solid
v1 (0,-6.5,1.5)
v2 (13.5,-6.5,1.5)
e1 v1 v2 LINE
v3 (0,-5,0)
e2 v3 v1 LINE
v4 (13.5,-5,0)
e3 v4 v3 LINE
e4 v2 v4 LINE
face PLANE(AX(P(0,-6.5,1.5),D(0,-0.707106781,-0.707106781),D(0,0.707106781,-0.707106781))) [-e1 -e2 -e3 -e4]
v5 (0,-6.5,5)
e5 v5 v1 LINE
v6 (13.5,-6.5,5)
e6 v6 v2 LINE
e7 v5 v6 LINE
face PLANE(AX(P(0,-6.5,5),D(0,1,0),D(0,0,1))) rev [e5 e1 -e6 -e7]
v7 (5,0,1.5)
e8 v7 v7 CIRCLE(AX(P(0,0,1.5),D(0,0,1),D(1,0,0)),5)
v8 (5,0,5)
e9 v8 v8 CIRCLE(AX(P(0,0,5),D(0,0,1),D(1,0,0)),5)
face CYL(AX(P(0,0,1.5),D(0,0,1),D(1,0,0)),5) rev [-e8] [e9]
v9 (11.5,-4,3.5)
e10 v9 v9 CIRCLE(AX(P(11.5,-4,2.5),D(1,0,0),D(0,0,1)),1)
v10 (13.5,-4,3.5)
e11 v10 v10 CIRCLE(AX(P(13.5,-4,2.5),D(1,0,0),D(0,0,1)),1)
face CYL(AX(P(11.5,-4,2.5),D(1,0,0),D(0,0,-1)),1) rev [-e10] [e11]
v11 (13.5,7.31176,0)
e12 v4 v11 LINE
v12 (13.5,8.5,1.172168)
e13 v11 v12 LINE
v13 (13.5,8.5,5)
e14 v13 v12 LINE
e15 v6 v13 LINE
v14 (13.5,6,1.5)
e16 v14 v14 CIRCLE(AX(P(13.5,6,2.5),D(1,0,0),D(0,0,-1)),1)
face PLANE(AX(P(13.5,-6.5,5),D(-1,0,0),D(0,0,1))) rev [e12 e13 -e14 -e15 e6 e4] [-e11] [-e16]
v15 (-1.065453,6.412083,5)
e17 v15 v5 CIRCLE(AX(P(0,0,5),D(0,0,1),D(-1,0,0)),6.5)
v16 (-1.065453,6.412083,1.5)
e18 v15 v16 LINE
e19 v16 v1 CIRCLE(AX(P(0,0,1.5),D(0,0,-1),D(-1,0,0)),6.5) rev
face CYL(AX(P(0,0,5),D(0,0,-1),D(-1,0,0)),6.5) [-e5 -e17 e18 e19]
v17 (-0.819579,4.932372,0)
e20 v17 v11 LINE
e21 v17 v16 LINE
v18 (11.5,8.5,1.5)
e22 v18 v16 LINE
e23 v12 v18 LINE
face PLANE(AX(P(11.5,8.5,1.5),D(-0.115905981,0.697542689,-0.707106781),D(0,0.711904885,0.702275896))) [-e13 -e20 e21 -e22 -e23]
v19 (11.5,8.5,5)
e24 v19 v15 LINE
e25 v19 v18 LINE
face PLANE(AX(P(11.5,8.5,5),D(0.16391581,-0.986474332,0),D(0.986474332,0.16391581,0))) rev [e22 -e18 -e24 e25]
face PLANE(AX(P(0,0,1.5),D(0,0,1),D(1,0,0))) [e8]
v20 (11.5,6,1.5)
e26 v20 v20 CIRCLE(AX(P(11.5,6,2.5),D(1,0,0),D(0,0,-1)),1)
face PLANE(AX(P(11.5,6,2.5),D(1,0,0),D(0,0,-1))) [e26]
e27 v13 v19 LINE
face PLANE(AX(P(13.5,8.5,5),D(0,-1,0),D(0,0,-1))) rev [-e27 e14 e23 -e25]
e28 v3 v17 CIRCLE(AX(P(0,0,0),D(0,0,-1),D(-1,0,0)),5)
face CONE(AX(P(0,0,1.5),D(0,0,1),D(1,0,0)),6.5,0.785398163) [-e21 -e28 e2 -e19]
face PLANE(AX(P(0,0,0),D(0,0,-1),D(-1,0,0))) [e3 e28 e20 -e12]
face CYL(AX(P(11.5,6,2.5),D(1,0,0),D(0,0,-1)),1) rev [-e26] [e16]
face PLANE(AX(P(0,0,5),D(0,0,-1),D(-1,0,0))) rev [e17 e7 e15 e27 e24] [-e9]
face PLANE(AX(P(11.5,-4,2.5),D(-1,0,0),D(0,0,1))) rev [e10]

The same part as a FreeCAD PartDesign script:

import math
import FreeCAD as App
import Part
import Sketcher
from FreeCAD import Vector


def edges_at(feature, points):
    """Names of the edges that pass closest to the given points."""
    edges = feature.Shape.Edges
    near = lambda p: min(range(len(edges)), key=lambda i: edges[i].distToShape(Part.Vertex(*p))[0])
    return sorted({f"Edge{near(p) + 1}" for p in points})

doc = App.newDocument("Part")
body = doc.addObject("PartDesign::Body", "Body")

# Sketch on XY plane
sketch1 = body.newObject("Sketcher::SketchObject", "Sketch")
sketch1.AttachmentSupport = (doc.getObject("XY_Plane"), [""])
sketch1.MapMode = "FlatFace"
sketch1.addGeometry([
    Part.LineSegment(Vector(0, -6.5, 0), Vector(13.5, -6.5, 0)),  # 0
    Part.LineSegment(Vector(13.5, -6.5, 0), Vector(13.5, 8.5, 0)),  # 1
    Part.LineSegment(Vector(13.5, 8.5, 0), Vector(11.5, 8.5, 0)),  # 2
    Part.LineSegment(Vector(11.5, 8.5, 0), Vector(-1.1, 6.4, 0)),  # 3
    Part.ArcOfCircle(Part.Circle(Vector(0, 0, 0), Vector(0, 0, 1), 6.5), math.radians(99), math.radians(270)),  # 4
], False)
sketch1.addConstraint([
    Sketcher.Constraint("Coincident", 0, 2, 1, 1),
    Sketcher.Constraint("Coincident", 1, 2, 2, 1),
    Sketcher.Constraint("Coincident", 2, 2, 3, 1),
    Sketcher.Constraint("Tangent", 3, 2, 4, 1),
    Sketcher.Constraint("Tangent", 4, 2, 0, 1),
    Sketcher.Constraint("Horizontal", 0),
    Sketcher.Constraint("Vertical", 1),
    Sketcher.Constraint("Horizontal", 2),
    Sketcher.Constraint("Coincident", 4, 3, -1, 1),
    Sketcher.Constraint("Radius", 4, 6.5),
    Sketcher.Constraint("DistanceX", 2, 2, 2, 1, 2.0),
    Sketcher.Constraint("DistanceY", 1, 1, 1, 2, 15.0),
    Sketcher.Constraint("DistanceX", 0, 1, 0, 2, 13.5),
])
pad1 = body.newObject("PartDesign::Pad", "Pad")
pad1.Profile = sketch1
pad1.Length = 5

# Sketch on XY plane
sketch2 = body.newObject("Sketcher::SketchObject", "Sketch001")
sketch2.AttachmentSupport = (doc.getObject("XY_Plane"), [""])
sketch2.MapMode = "FlatFace"
sketch2.AttachmentOffset = App.Placement(Vector(0, 0, 5), App.Rotation())
sketch2.addGeometry(Part.Circle(Vector(0, 0, 0), Vector(0, 0, 1), 5), False)
sketch2.addConstraint([
    Sketcher.Constraint("Coincident", 0, 3, -1, 1),
    Sketcher.Constraint("Diameter", 0, 10.0),
])
pocket1 = body.newObject("PartDesign::Pocket", "Pocket")
pocket1.Profile = sketch2
pocket1.Length = 3.5

# Sketch on YZ plane
sketch3 = body.newObject("Sketcher::SketchObject", "Sketch002")
sketch3.AttachmentSupport = (doc.getObject("YZ_Plane"), [""])
sketch3.MapMode = "FlatFace"
sketch3.AttachmentOffset = App.Placement(Vector(0, 0, 13.5), App.Rotation())
sketch3.addGeometry([
    Part.Circle(Vector(6, 2.5, 0), Vector(0, 0, 1), 1),
    Part.Circle(Vector(-4, 2.5, 0), Vector(0, 0, 1), 1),
], False)
sketch3.addConstraint([
    Sketcher.Constraint("Equal", 0, 1),
    Sketcher.Constraint("Horizontal", 0, 3, 1, 3),
    Sketcher.Constraint("Diameter", 0, 2.0),
    Sketcher.Constraint("DistanceX", -1, 1, 0, 3, 6.0),
    Sketcher.Constraint("DistanceX", 1, 3, -1, 1, 4.0),
    Sketcher.Constraint("DistanceY", -1, 1, 0, 3, 2.5),
])
pocket2 = body.newObject("PartDesign::Pocket", "Pocket001")
pocket2.Profile = sketch3
pocket2.Length = 2
doc.recompute()

chamfer = body.newObject("PartDesign::Chamfer", "Chamfer")
chamfer.Base = (pocket2, edges_at(pocket2, [(5.217, 7.456, 0), (-6.478, -0.535, 0), (6.75, -6.5, 0)]))
chamfer.Size = 1.5

doc.recompute()
